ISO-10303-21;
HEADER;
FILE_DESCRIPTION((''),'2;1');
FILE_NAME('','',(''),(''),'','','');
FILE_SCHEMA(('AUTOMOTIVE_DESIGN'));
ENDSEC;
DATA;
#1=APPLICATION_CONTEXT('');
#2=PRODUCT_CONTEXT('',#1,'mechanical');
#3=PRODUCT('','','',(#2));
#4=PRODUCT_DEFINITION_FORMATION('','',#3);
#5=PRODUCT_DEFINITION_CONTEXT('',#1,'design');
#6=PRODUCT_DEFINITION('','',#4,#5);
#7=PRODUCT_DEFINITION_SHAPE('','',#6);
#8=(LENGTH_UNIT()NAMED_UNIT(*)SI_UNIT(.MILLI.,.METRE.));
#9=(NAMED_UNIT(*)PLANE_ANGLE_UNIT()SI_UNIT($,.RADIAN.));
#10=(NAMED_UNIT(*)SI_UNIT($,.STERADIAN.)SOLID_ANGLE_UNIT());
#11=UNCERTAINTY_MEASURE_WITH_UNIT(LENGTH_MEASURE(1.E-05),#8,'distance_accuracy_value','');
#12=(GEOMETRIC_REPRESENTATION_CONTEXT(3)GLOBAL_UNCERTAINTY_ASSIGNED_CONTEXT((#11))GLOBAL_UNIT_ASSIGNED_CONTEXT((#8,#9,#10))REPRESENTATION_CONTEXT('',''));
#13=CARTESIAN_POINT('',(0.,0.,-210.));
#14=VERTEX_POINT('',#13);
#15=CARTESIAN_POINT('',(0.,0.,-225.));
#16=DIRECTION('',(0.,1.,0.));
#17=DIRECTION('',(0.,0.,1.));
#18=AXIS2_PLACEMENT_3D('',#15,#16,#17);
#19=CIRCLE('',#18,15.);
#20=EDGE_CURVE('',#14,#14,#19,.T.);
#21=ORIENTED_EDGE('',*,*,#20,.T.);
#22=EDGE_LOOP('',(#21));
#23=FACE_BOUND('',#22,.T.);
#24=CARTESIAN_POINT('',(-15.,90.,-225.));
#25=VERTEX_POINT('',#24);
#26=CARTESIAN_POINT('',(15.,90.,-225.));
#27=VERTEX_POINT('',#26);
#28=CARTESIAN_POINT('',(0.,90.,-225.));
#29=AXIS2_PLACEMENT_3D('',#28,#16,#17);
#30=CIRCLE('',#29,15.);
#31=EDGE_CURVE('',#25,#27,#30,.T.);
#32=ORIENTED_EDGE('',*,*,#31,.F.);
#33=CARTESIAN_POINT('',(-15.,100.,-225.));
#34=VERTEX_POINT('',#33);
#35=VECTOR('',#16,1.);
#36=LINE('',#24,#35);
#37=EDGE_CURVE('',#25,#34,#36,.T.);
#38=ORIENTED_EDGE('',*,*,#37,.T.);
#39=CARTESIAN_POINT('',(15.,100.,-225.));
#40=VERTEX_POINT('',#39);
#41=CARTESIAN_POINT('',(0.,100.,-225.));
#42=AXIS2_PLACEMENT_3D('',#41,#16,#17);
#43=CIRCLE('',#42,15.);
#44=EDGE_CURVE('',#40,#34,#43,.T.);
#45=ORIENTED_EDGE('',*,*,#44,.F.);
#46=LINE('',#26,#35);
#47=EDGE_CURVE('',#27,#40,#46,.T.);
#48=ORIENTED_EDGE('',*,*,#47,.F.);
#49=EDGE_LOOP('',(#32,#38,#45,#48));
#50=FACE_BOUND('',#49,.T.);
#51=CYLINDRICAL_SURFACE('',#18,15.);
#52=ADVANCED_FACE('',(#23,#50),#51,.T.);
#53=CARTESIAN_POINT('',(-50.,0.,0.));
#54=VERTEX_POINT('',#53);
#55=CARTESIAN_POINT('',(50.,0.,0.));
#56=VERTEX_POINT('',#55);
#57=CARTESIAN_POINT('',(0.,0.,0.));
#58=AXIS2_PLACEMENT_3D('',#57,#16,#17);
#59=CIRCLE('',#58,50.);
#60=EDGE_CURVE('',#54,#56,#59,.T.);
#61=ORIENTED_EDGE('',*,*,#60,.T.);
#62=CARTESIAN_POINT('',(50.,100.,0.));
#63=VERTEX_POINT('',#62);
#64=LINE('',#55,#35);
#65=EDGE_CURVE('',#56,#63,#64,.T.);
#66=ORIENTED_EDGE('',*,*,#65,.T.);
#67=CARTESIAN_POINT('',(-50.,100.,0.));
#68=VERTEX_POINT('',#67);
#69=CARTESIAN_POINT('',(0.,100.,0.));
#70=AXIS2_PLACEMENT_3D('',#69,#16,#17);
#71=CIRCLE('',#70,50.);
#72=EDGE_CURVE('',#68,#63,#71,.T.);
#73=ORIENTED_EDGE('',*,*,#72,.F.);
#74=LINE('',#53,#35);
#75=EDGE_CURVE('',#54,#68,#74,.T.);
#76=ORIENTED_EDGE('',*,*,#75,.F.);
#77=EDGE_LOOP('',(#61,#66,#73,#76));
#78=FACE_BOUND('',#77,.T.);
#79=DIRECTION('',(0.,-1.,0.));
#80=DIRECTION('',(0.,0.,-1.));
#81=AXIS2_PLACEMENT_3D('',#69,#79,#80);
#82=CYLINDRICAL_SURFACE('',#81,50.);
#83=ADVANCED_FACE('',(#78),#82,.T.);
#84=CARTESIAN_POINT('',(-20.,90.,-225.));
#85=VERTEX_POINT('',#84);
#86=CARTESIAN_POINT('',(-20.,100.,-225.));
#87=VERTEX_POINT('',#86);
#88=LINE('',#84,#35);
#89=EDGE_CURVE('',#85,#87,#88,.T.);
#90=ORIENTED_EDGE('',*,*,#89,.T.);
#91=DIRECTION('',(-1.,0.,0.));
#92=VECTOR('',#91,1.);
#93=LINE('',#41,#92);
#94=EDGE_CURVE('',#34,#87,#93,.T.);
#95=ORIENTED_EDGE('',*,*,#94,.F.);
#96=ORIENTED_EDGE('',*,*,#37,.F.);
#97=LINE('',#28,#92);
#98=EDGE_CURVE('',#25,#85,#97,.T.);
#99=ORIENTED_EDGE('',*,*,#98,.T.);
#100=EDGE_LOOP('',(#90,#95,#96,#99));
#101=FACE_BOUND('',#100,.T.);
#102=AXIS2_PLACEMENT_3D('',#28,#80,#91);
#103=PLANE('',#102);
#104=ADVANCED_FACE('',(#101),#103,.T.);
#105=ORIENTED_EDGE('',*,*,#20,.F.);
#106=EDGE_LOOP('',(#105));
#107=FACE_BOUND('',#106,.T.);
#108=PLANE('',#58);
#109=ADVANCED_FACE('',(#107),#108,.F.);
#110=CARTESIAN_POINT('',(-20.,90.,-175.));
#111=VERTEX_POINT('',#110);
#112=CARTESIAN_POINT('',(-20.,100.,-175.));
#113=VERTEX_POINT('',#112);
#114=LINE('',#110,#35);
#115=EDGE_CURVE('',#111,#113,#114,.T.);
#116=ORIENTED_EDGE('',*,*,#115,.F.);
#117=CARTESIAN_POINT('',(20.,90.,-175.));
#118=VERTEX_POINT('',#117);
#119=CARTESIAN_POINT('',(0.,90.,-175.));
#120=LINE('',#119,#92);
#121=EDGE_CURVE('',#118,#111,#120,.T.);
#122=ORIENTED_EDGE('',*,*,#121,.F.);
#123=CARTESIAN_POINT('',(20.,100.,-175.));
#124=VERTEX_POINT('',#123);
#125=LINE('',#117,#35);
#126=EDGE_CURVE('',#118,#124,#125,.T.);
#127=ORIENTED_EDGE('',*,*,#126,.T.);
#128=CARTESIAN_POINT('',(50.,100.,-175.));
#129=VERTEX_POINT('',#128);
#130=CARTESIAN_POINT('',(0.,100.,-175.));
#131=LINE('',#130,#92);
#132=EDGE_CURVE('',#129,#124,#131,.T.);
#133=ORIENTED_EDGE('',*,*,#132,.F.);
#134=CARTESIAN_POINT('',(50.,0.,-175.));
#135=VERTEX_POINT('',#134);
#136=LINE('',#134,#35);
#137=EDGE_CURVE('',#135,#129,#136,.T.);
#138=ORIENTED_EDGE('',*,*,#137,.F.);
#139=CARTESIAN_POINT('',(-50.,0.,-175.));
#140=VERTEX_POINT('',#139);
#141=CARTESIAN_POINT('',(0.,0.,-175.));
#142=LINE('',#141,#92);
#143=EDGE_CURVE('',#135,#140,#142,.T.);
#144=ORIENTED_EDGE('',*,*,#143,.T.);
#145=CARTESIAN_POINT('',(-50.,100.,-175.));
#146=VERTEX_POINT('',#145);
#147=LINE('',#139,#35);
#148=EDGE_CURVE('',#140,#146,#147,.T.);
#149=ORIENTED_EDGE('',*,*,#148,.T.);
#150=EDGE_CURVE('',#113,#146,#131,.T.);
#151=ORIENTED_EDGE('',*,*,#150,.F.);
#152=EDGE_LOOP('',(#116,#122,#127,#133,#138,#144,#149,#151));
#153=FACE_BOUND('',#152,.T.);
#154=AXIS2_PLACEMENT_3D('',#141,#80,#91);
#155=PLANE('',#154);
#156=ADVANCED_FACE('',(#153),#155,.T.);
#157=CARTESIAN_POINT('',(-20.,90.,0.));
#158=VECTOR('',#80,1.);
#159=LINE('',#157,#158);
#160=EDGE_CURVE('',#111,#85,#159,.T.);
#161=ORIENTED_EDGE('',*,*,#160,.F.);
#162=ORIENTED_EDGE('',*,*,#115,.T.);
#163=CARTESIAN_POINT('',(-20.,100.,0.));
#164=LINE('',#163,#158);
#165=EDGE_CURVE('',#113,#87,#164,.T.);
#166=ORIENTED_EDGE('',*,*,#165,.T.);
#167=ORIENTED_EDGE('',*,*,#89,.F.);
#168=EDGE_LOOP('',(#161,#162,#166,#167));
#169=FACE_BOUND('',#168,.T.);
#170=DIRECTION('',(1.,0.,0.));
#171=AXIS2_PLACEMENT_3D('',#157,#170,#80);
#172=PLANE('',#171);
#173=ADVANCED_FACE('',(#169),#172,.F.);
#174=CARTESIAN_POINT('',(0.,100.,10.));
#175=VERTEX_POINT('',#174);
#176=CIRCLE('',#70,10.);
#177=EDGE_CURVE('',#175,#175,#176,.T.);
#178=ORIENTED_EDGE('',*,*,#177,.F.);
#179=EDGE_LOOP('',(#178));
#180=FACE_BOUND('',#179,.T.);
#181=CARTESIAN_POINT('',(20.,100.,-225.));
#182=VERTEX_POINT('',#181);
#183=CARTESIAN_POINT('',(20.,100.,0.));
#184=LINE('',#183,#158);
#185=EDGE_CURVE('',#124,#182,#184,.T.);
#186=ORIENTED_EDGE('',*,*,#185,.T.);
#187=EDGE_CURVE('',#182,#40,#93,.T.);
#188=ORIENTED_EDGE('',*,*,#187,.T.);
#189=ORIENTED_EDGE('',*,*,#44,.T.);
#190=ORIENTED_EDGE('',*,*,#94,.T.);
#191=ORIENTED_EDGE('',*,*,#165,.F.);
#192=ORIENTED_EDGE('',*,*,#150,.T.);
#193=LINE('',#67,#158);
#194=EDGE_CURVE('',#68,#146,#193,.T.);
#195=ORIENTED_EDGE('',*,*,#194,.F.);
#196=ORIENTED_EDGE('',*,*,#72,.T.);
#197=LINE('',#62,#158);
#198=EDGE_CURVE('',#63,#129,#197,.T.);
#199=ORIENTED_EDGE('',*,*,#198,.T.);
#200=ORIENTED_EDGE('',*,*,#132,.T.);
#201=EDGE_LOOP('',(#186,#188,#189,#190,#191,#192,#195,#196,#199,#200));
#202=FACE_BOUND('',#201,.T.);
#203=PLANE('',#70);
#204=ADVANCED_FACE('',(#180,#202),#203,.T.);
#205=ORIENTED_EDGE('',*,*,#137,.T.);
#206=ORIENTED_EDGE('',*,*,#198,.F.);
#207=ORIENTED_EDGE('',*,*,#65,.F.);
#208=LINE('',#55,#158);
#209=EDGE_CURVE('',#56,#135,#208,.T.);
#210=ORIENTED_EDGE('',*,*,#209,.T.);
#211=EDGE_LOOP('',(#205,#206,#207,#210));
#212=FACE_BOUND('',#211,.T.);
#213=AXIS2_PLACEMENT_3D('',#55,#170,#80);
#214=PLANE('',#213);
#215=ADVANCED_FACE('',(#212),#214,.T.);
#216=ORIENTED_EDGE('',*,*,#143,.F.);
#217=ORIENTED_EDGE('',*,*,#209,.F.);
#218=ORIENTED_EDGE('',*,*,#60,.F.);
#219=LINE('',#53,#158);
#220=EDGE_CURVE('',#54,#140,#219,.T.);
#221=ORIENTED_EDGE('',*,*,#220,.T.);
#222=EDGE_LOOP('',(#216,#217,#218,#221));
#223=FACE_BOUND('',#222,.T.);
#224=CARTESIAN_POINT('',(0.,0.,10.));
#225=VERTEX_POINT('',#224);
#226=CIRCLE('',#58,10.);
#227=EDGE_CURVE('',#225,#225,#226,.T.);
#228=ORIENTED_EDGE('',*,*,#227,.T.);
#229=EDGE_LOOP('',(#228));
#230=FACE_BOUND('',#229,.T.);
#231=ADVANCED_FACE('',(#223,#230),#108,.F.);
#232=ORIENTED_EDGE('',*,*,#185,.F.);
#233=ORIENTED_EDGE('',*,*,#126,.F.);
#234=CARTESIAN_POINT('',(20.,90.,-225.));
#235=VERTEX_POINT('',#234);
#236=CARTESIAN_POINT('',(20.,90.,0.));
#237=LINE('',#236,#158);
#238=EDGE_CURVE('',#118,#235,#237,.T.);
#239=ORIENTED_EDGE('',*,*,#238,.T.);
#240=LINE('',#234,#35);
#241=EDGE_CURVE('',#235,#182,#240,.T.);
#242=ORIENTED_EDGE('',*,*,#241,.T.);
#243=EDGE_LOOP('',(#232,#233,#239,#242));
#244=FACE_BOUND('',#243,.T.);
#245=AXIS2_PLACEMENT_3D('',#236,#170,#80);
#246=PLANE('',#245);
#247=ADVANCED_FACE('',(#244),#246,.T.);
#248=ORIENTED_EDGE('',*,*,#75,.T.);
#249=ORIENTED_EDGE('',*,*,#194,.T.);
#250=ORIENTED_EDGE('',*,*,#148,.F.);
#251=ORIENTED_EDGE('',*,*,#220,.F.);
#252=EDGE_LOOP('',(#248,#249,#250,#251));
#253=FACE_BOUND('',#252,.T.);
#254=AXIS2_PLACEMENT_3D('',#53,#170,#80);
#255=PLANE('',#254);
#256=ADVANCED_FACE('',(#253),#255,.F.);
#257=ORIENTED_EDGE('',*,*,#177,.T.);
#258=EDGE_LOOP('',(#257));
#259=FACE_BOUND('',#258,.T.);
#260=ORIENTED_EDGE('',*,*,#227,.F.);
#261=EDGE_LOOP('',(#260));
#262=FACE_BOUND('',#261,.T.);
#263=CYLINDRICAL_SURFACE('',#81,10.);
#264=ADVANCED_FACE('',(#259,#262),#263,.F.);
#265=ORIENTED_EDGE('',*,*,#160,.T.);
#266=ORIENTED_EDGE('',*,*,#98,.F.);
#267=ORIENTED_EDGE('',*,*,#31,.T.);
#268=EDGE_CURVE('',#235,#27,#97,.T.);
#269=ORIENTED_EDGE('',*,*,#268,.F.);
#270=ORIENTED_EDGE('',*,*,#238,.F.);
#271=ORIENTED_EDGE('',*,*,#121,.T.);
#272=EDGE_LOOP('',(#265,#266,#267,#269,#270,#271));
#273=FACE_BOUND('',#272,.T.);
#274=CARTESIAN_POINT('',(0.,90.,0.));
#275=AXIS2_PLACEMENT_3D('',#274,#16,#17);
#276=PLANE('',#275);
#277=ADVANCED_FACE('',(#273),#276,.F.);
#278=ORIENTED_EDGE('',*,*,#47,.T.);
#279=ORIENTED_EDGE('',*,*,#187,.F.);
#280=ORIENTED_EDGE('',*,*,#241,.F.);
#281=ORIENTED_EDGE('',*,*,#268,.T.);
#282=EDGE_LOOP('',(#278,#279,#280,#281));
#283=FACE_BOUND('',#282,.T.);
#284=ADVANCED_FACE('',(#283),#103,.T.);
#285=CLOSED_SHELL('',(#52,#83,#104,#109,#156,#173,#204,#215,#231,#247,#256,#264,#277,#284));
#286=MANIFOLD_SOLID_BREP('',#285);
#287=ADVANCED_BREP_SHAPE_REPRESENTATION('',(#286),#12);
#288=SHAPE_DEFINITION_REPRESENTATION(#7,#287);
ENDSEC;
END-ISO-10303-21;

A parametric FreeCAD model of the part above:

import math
import FreeCAD as App
import Part
import Sketcher
from FreeCAD import Vector
Q = App.Units.Quantity

doc = App.newDocument("Part")
body = doc.addObject("PartDesign::Body", "Body")

sketch1 = body.newObject("Sketcher::SketchObject", "Sketch")
sketch1.AttachmentSupport = (doc.getObject("XZ_Plane"), [""])
sketch1.MapMode = "FlatFace"
sketch1.addGeometry([
    Part.Circle(Vector(0, 0, 0), Vector(0, 0, 1), 50),
    Part.Circle(Vector(0, 0, 0), Vector(0, 0, 1), 10),
], False)
sketch1.addConstraint([
    Sketcher.Constraint("Coincident", 0, 3, -1, 1),
    Sketcher.Constraint("Coincident", 1, 3, -1, 1),
    Sketcher.Constraint("Diameter", 0, Q("100 mm")),
    Sketcher.Constraint("Diameter", 1, Q("20 mm")),
])
pad1 = body.newObject("PartDesign::Pad", "Pad")
pad1.Profile = sketch1
pad1.Length = 100
pad1.Reversed = True

sketch2 = body.newObject("Sketcher::SketchObject", "Sketch001")
sketch2.AttachmentSupport = (doc.getObject("XZ_Plane"), [""])
sketch2.MapMode = "FlatFace"
sketch2.addGeometry([
    Part.ArcOfCircle(Part.Circle(Vector(0, 0, 0), Vector(0, 0, 1), 50), math.radians(180), math.radians(360)),
    Part.LineSegment(Vector(50, 0, 0), Vector(50, -175, 0)),
    Part.LineSegment(Vector(50, -175, 0), Vector(-50, -175, 0)),
    Part.LineSegment(Vector(-50, -175, 0), Vector(-50, 0, 0)),
], False)
sketch2.addConstraint([
    Sketcher.Constraint("Tangent", 0, 2, 1, 1),
    Sketcher.Constraint("Coincident", 1, 2, 2, 1),
    Sketcher.Constraint("Coincident", 2, 2, 3, 1),
    Sketcher.Constraint("Tangent", 3, 2, 0, 1),
    Sketcher.Constraint("Vertical", 1),
    Sketcher.Constraint("Horizontal", 2),
    Sketcher.Constraint("Vertical", 3),
    Sketcher.Constraint("Coincident", 0, 3, -1, 1),
    Sketcher.Constraint("Radius", 0, Q("50 mm")),
    Sketcher.Constraint("DistanceY", 1, 2, 1, 1, Q("175 mm")),
])
pad2 = body.newObject("PartDesign::Pad", "Pad001")
pad2.Profile = sketch2
pad2.Length = 100
pad2.Reversed = True

sketch3 = body.newObject("Sketcher::SketchObject", "Sketch002")
sketch3.AttachmentSupport = (doc.getObject("XZ_Plane"), [""])
sketch3.MapMode = "FlatFace"
sketch3.AttachmentOffset = App.Placement(Vector(0, 0, -100), App.Rotation())
sketch3.addGeometry([
    Part.LineSegment(Vector(-20, -175, 0), Vector(20, -175, 0)),
    Part.LineSegment(Vector(20, -175, 0), Vector(20, -225, 0)),
    Part.LineSegment(Vector(20, -225, 0), Vector(15, -225, 0)),
    Part.ArcOfCircle(Part.Circle(Vector(0, -225, 0), Vector(0, 0, 1), 15), math.radians(0), math.radians(180)),
    Part.LineSegment(Vector(-15, -225, 0), Vector(-20, -225, 0)),
    Part.LineSegment(Vector(-20, -225, 0), Vector(-20, -175, 0)),
], False)
sketch3.addConstraint([
    Sketcher.Constraint("Coincident", 0, 2, 1, 1),
    Sketcher.Constraint("Coincident", 1, 2, 2, 1),
    Sketcher.Constraint("Coincident", 2, 2, 3, 1),
    Sketcher.Constraint("Coincident", 3, 2, 4, 1),
    Sketcher.Constraint("Coincident", 4, 2, 5, 1),
    Sketcher.Constraint("Coincident", 5, 2, 0, 1),
    Sketcher.Constraint("Horizontal", 0),
    Sketcher.Constraint("Vertical", 1),
    Sketcher.Constraint("Horizontal", 2),
    Sketcher.Constraint("Horizontal", 4),
    Sketcher.Constraint("Vertical", 5),
    Sketcher.Constraint("Symmetric", 2, 2, 3, 2, -2),
    Sketcher.Constraint("Horizontal", 3, 3, 1, 2),
    Sketcher.Constraint("Equal", 2, 4),
    Sketcher.Constraint("Radius", 3, Q("15 mm")),
    Sketcher.Constraint("DistanceX", 0, 1, 0, 2, Q("40 mm")),
    Sketcher.Constraint("DistanceY", 1, 2, 1, 1, Q("50 mm")),
    Sketcher.Constraint("DistanceY", 3, 3, -1, 1, Q("225 mm")),
])
pad3 = body.newObject("PartDesign::Pad", "Pad002")
pad3.Profile = sketch3
pad3.Length = 10

sketch4 = body.newObject("Sketcher::SketchObject", "Sketch003")
sketch4.AttachmentSupport = (doc.getObject("XZ_Plane"), [""])
sketch4.MapMode = "FlatFace"
sketch4.AttachmentOffset = App.Placement(Vector(0, 0, -100), App.Rotation())
sketch4.addGeometry(Part.Circle(Vector(0, -225, 0), Vector(0, 0, 1), 15), False)
sketch4.addConstraint([
    Sketcher.Constraint("PointOnObject", 0, 3, -2),
    Sketcher.Constraint("Diameter", 0, Q("30 mm")),
    Sketcher.Constraint("DistanceY", 0, 3, -1, 1, Q("225 mm")),
])
pad4 = body.newObject("PartDesign::Pad", "Pad003")
pad4.Profile = sketch4
pad4.Length = 100

doc.recompute()
